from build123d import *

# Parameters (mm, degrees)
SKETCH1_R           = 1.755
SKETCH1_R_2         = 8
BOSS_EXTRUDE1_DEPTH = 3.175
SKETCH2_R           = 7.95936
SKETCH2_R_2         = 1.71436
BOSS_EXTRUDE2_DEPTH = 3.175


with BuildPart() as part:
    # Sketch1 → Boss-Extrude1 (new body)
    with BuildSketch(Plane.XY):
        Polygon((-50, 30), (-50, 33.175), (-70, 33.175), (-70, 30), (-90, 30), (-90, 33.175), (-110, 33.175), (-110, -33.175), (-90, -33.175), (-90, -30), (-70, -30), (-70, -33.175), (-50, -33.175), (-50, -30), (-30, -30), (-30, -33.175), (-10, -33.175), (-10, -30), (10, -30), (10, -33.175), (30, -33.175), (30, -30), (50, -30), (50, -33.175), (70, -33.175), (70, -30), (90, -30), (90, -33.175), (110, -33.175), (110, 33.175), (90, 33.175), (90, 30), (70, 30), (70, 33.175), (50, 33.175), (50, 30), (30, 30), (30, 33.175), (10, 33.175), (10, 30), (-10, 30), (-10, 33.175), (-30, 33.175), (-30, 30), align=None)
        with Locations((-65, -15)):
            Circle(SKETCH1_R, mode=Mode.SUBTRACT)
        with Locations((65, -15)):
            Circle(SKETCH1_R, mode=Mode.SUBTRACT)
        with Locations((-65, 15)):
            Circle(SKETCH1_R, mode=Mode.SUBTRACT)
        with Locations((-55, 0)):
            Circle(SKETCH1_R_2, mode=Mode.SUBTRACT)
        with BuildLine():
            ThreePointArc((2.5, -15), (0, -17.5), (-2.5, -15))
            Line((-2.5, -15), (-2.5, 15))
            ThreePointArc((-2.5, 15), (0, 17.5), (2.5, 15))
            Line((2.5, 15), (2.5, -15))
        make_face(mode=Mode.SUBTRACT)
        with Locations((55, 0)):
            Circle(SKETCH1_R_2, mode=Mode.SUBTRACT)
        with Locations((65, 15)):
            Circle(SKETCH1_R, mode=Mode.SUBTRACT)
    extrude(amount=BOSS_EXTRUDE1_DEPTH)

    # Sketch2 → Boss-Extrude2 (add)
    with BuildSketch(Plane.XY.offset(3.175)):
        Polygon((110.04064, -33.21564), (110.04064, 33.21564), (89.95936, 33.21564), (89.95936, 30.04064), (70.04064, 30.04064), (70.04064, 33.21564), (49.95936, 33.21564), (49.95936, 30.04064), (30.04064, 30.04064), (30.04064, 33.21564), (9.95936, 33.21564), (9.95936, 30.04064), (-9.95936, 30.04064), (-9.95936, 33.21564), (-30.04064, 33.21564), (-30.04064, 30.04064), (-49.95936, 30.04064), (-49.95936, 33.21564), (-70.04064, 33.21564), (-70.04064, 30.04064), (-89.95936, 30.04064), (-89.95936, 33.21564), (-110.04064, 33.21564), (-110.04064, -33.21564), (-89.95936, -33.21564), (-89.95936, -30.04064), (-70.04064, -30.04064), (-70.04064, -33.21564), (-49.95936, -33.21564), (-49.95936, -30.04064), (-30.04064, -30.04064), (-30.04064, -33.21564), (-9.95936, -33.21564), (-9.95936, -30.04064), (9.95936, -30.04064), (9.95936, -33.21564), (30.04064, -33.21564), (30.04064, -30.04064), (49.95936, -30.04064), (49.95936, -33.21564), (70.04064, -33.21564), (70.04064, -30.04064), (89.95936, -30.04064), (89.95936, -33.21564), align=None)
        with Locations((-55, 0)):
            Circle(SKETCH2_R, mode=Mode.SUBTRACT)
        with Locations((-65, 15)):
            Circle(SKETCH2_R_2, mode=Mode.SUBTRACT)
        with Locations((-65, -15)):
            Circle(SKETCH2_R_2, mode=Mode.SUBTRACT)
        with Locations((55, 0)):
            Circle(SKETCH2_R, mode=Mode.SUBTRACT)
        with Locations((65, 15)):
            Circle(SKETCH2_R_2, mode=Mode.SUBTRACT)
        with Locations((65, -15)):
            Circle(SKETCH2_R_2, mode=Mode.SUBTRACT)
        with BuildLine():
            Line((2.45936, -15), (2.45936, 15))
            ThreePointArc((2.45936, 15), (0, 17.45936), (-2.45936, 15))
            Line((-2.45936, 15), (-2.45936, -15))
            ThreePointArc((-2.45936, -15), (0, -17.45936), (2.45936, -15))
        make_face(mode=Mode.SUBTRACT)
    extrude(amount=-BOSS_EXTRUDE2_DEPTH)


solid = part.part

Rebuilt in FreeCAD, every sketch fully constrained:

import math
import FreeCAD as App
import Part
import Sketcher
from FreeCAD import Vector


def add_polygon(sketch, points):
    """Adds a closed chain of lines whose ends are joined by coincident constraints."""
    first, n = sketch.GeometryCount, len(points)
    for a, b in zip(points, points[1:] + points[:1]):
        sketch.addGeometry(Part.LineSegment(App.Vector(*a, 0), App.Vector(*b, 0)), False)
    for i in range(n):
        sketch.addConstraint(Sketcher.Constraint("Coincident", first + i, 2, first + (i + 1) % n, 1))

doc = App.newDocument("Part")
body = doc.addObject("PartDesign::Body", "Body")

sketch1 = doc.addObject("Sketcher::SketchObject", "Sketch")
body.addObject(sketch1)
sketch1.AttachmentSupport = (doc.XY_Plane, [""])
sketch1.MapMode = "FlatFace"
add_polygon(sketch1, [(-50, 30), (-50, 33.2), (-70, 33.2), (-70, 30), (-90, 30), (-90, 33.2), (-110, 33.2), (-110, -33.2), (-90, -33.2), (-90, -30), (-70, -30), (-70, -33.2), (-50, -33.2), (-50, -30), (-30, -30), (-30, -33.2), (-10, -33.2), (-10, -30), (10, -30), (10, -33.2), (30, -33.2), (30, -30), (50, -30), (50, -33.2), (70, -33.2), (70, -30), (90, -30), (90, -33.2), (110, -33.2), (110, 33.2), (90, 33.2), (90, 30), (70, 30), (70, 33.2), (50, 33.2), (50, 30), (30, 30), (30, 33.2), (10, 33.2), (10, 30), (-10, 30), (-10, 33.2), (-30, 33.2), (-30, 30)])
sketch1.addGeometry(Part.Circle(Vector(-65, -15, 0), Vector(0, 0, 1), 1.8), False)
sketch1.addGeometry(Part.Circle(Vector(65, -15, 0), Vector(0, 0, 1), 1.8), False)
sketch1.addGeometry(Part.Circle(Vector(-55, 0, 0), Vector(0, 0, 1), 8), False)
sketch1.addGeometry(Part.Circle(Vector(-65, 15, 0), Vector(0, 0, 1), 1.8), False)
sketch1.addGeometry(Part.LineSegment(Vector(2.5, 15, 0), Vector(2.5, -15, 0)), False)
sketch1.addGeometry(Part.ArcOfCircle(Part.Circle(Vector(0, -15, 0), Vector(0, 0, 1), 2.5), math.radians(180), math.radians(360)), False)
sketch1.addGeometry(Part.LineSegment(Vector(-2.5, -15, 0), Vector(-2.5, 15, 0)), False)
sketch1.addGeometry(Part.ArcOfCircle(Part.Circle(Vector(0, 15, 0), Vector(0, 0, 1), 2.5), math.radians(0), math.radians(180)), False)
sketch1.addGeometry(Part.Circle(Vector(55, 0, 0), Vector(0, 0, 1), 8), False)
sketch1.addGeometry(Part.Circle(Vector(65, 15, 0), Vector(0, 0, 1), 1.8), False)
sketch1.addConstraint([
    Sketcher.Constraint("Tangent", 48, 2, 49, 2),
    Sketcher.Constraint("Tangent", 49, 1, 50, 1),
    Sketcher.Constraint("Tangent", 50, 2, 51, 2),
    Sketcher.Constraint("Tangent", 51, 1, 48, 1),
    Sketcher.Constraint("Vertical", 0),
    Sketcher.Constraint("Horizontal", 1),
    Sketcher.Constraint("Vertical", 2),
    Sketcher.Constraint("Horizontal", 3),
    Sketcher.Constraint("Vertical", 4),
    Sketcher.Constraint("Horizontal", 5),
    Sketcher.Constraint("Vertical", 6),
    Sketcher.Constraint("Horizontal", 7),
    Sketcher.Constraint("Vertical", 8),
    Sketcher.Constraint("Horizontal", 9),
    Sketcher.Constraint("Vertical", 10),
    Sketcher.Constraint("Horizontal", 11),
    Sketcher.Constraint("Vertical", 12),
    Sketcher.Constraint("Horizontal", 13),
    Sketcher.Constraint("Vertical", 14),
    Sketcher.Constraint("Horizontal", 15),
    Sketcher.Constraint("Vertical", 16),
    Sketcher.Constraint("Horizontal", 17),
    Sketcher.Constraint("Vertical", 18),
    Sketcher.Constraint("Horizontal", 19),
    Sketcher.Constraint("Vertical", 20),
    Sketcher.Constraint("Horizontal", 21),
    Sketcher.Constraint("Vertical", 22),
    Sketcher.Constraint("Horizontal", 23),
    Sketcher.Constraint("Vertical", 24),
    Sketcher.Constraint("Horizontal", 25),
    Sketcher.Constraint("Vertical", 26),
    Sketcher.Constraint("Horizontal", 27),
    Sketcher.Constraint("Vertical", 28),
    Sketcher.Constraint("Horizontal", 29),
    Sketcher.Constraint("Vertical", 30),
    Sketcher.Constraint("Horizontal", 31),
    Sketcher.Constraint("Vertical", 32),
    Sketcher.Constraint("Horizontal", 33),
    Sketcher.Constraint("Vertical", 34),
    Sketcher.Constraint("Horizontal", 35),
    Sketcher.Constraint("Vertical", 36),
    Sketcher.Constraint("Horizontal", 37),
    Sketcher.Constraint("Vertical", 38),
    Sketcher.Constraint("Horizontal", 39),
    Sketcher.Constraint("Vertical", 40),
    Sketcher.Constraint("Horizontal", 41),
    Sketcher.Constraint("Vertical", 42),
    Sketcher.Constraint("Horizontal", 43),
    Sketcher.Constraint("Vertical", 48),
    Sketcher.Constraint("Vertical", 50),
    Sketcher.Constraint("Equal", 44, 45),
    Sketcher.Constraint("Equal", 45, 47),
    Sketcher.Constraint("Equal", 46, 52),
    Sketcher.Constraint("Equal", 47, 53),
    Sketcher.Constraint("Symmetric", 45, 3, 47, 3, -1, 1),
    Sketcher.Constraint("Symmetric", 49, 3, 51, 3, -1, 1),
    Sketcher.Constraint("Symmetric", 46, 3, 52, 3, -1, 1),
    Sketcher.Constraint("Symmetric", 44, 3, 53, 3, -1, 1),
    Sketcher.Constraint("Symmetric", 0, 2, 22, 2, -1, 1),
    Sketcher.Constraint("Symmetric", 2, 2, 24, 2, -1, 1),
    Sketcher.Constraint("Symmetric", 4, 2, 26, 2, -1, 1),
    Sketcher.Constraint("Symmetric", 6, 2, 28, 2, -1, 1),
    Sketcher.Constraint("Symmetric", 8, 2, 30, 2, -1, 1),
    Sketcher.Constraint("Symmetric", 10, 2, 32, 2, -1, 1),
    Sketcher.Constraint("Symmetric", 12, 2, 34, 2, -1, 1),
    Sketcher.Constraint("Symmetric", 14, 2, 36, 2, -1, 1),
    Sketcher.Constraint("Symmetric", 16, 2, 38, 2, -1, 1),
    Sketcher.Constraint("Symmetric", 18, 2, 40, 2, -1, 1),
    Sketcher.Constraint("Symmetric", 20, 2, 42, 2, -1, 1),
    Sketcher.Constraint("Symmetric", 44, 3, 45, 3, -2),
    Sketcher.Constraint("Symmetric", 15, 2, 18, 2, -2),
    Sketcher.Constraint("Symmetric", 13, 2, 20, 2, -2),
    Sketcher.Constraint("Symmetric", 11, 2, 22, 2, -2),
    Sketcher.Constraint("Symmetric", 9, 2, 24, 2, -2),
    Sketcher.Constraint("Symmetric", 7, 2, 26, 2, -2),
    Sketcher.Constraint("PointOnObject", 46, 3, -1),
    Sketcher.Constraint("Horizontal", 45, 3, 49, 3),
    Sketcher.Constraint("Horizontal", 1, 2, 4, 2),
    Sketcher.Constraint("Horizontal", 9, 2, 12, 2),
    Sketcher.Constraint("Horizontal", 11, 2, 14, 2),
    Sketcher.Constraint("Horizontal", 13, 2, 16, 2),
    Sketcher.Constraint("Equal", 1, 3),
    Sketcher.Constraint("Equal", 3, 5),
    Sketcher.Constraint("Equal", 11, 13),
    Sketcher.Constraint("Equal", 13, 15),
    Sketcher.Constraint("Equal", 15, 17),
    Sketcher.Constraint("Diameter", 46, 16.0),
    Sketcher.Constraint("Radius", 49, 2.5),
    Sketcher.Constraint("Diameter", 44, 3.51),
    Sketcher.Constraint("DistanceX", 1, 2, 1, 1, 20.0),
    Sketcher.Constraint("DistanceY", 48, 2, 48, 1, 30.0),
    Sketcher.Constraint("DistanceX", 44, 3, -1, 1, 65.0),
    Sketcher.Constraint("DistanceX", 46, 3, -1, 1, 55.0),
    Sketcher.Constraint("DistanceY", -1, 1, 2, 2, 30.0),
    Sketcher.Constraint("DistanceY", 6, 2, 6, 1, 66.35),
])
pad1 = doc.addObject("PartDesign::Pad", "Pad")
body.addObject(pad1)
pad1.Profile = sketch1
pad1.Length = 3.175

sketch2 = doc.addObject("Sketcher::SketchObject", "Sketch001")
body.addObject(sketch2)
sketch2.AttachmentSupport = (doc.XY_Plane, [""])
sketch2.MapMode = "FlatFace"
sketch2.AttachmentOffset = App.Placement(Vector(0, 0, 3.175), App.Rotation())
add_polygon(sketch2, [(110, -33.2), (110, 33.2), (90, 33.2), (90, 30), (70, 30), (70, 33.2), (50, 33.2), (50, 30), (30, 30), (30, 33.2), (10, 33.2), (10, 30), (-10, 30), (-10, 33.2), (-30, 33.2), (-30, 30), (-50, 30), (-50, 33.2), (-70, 33.2), (-70, 30), (-90, 30), (-90, 33.2), (-110, 33.2), (-110, -33.2), (-90, -33.2), (-90, -30), (-70, -30), (-70, -33.2), (-50, -33.2), (-50, -30), (-30, -30), (-30, -33.2), (-10, -33.2), (-10, -30), (10, -30), (10, -33.2), (30, -33.2), (30, -30), (50, -30), (50, -33.2), (70, -33.2), (70, -30), (90, -30), (90, -33.2)])
sketch2.addGeometry(Part.Circle(Vector(-65, -15, 0), Vector(0, 0, 1), 1.7), False)
sketch2.addGeometry(Part.Circle(Vector(-55, 0, 0), Vector(0, 0, 1), 8), False)
sketch2.addGeometry(Part.Circle(Vector(65, -15, 0), Vector(0, 0, 1), 1.7), False)
sketch2.addGeometry(Part.Circle(Vector(55, 0, 0), Vector(0, 0, 1), 8), False)
sketch2.addGeometry(Part.Circle(Vector(-65, 15, 0), Vector(0, 0, 1), 1.7), False)
sketch2.addGeometry(Part.LineSegment(Vector(2.5, 15, 0), Vector(2.5, -15, 0)), False)
sketch2.addGeometry(Part.ArcOfCircle(Part.Circle(Vector(0, -15, 0), Vector(0, 0, 1), 2.5), math.radians(180), math.radians(360)), False)
sketch2.addGeometry(Part.LineSegment(Vector(-2.5, -15, 0), Vector(-2.5, 15, 0)), False)
sketch2.addGeometry(Part.ArcOfCircle(Part.Circle(Vector(0, 15, 0), Vector(0, 0, 1), 2.5), math.radians(0), math.radians(180)), False)
sketch2.addGeometry(Part.Circle(Vector(65, 15, 0), Vector(0, 0, 1), 1.7), False)
sketch2.addConstraint([
    Sketcher.Constraint("Tangent", 49, 2, 50, 2),
    Sketcher.Constraint("Tangent", 50, 1, 51, 1),
    Sketcher.Constraint("Tangent", 51, 2, 52, 2),
    Sketcher.Constraint("Tangent", 52, 1, 49, 1),
    Sketcher.Constraint("Vertical", 0),
    Sketcher.Constraint("Horizontal", 1),
    Sketcher.Constraint("Vertical", 2),
    Sketcher.Constraint("Horizontal", 3),
    Sketcher.Constraint("Vertical", 4),
    Sketcher.Constraint("Horizontal", 5),
    Sketcher.Constraint("Vertical", 6),
    Sketcher.Constraint("Horizontal", 7),
    Sketcher.Constraint("Vertical", 8),
    Sketcher.Constraint("Horizontal", 9),
    Sketcher.Constraint("Vertical", 10),
    Sketcher.Constraint("Horizontal", 11),
    Sketcher.Constraint("Vertical", 12),
    Sketcher.Constraint("Horizontal", 13),
    Sketcher.Constraint("Vertical", 14),
    Sketcher.Constraint("Horizontal", 15),
    Sketcher.Constraint("Vertical", 16),
    Sketcher.Constraint("Horizontal", 17),
    Sketcher.Constraint("Vertical", 18),
    Sketcher.Constraint("Horizontal", 19),
    Sketcher.Constraint("Vertical", 20),
    Sketcher.Constraint("Horizontal", 21),
    Sketcher.Constraint("Vertical", 22),
    Sketcher.Constraint("Horizontal", 23),
    Sketcher.Constraint("Vertical", 24),
    Sketcher.Constraint("Horizontal", 25),
    Sketcher.Constraint("Vertical", 26),
    Sketcher.Constraint("Horizontal", 27),
    Sketcher.Constraint("Vertical", 28),
    Sketcher.Constraint("Horizontal", 29),
    Sketcher.Constraint("Vertical", 30),
    Sketcher.Constraint("Horizontal", 31),
    Sketcher.Constraint("Vertical", 32),
    Sketcher.Constraint("Horizontal", 33),
    Sketcher.Constraint("Vertical", 34),
    Sketcher.Constraint("Horizontal", 35),
    Sketcher.Constraint("Vertical", 36),
    Sketcher.Constraint("Horizontal", 37),
    Sketcher.Constraint("Vertical", 38),
    Sketcher.Constraint("Horizontal", 39),
    Sketcher.Constraint("Vertical", 40),
    Sketcher.Constraint("Horizontal", 41),
    Sketcher.Constraint("Vertical", 42),
    Sketcher.Constraint("Horizontal", 43),
    Sketcher.Constraint("Vertical", 49),
    Sketcher.Constraint("Vertical", 51),
    Sketcher.Constraint("Equal", 44, 46),
    Sketcher.Constraint("Equal", 45, 47),
    Sketcher.Constraint("Equal", 46, 48),
    Sketcher.Constraint("Equal", 48, 53),
    Sketcher.Constraint("Symmetric", 45, 3, 47, 3, -1, 1),
    Sketcher.Constraint("Symmetric", 46, 3, 48, 3, -1, 1),
    Sketcher.Constraint("Symmetric", 50, 3, 52, 3, -1, 1),
    Sketcher.Constraint("Symmetric", 44, 3, 53, 3, -1, 1),
    Sketcher.Constraint("Symmetric", 0, 2, 22, 2, -1, 1),
    Sketcher.Constraint("Symmetric", 2, 2, 24, 2, -1, 1),
    Sketcher.Constraint("Symmetric", 4, 2, 26, 2, -1, 1),
    Sketcher.Constraint("Symmetric", 6, 2, 28, 2, -1, 1),
    Sketcher.Constraint("Symmetric", 8, 2, 30, 2, -1, 1),
    Sketcher.Constraint("Symmetric", 10, 2, 32, 2, -1, 1),
    Sketcher.Constraint("Symmetric", 12, 2, 34, 2, -1, 1),
    Sketcher.Constraint("Symmetric", 14, 2, 36, 2, -1, 1),
    Sketcher.Constraint("Symmetric", 16, 2, 38, 2, -1, 1),
    Sketcher.Constraint("Symmetric", 18, 2, 40, 2, -1, 1),
    Sketcher.Constraint("Symmetric", 20, 2, 42, 2, -1, 1),
    Sketcher.Constraint("Symmetric", 44, 3, 46, 3, -2),
    Sketcher.Constraint("Symmetric", 9, 2, 12, 2, -2),
    Sketcher.Constraint("Symmetric", 7, 2, 14, 2, -2),
    Sketcher.Constraint("Symmetric", 5, 2, 16, 2, -2),
    Sketcher.Constraint("Symmetric", 3, 2, 18, 2, -2),
    Sketcher.Constraint("Symmetric", 1, 2, 20, 2, -2),
    Sketcher.Constraint("PointOnObject", 45, 3, -1),
    Sketcher.Constraint("Horizontal", 46, 3, 50, 3),
    Sketcher.Constraint("Horizontal", 1, 2, 4, 2),
    Sketcher.Constraint("Horizontal", 3, 2, 6, 2),
    Sketcher.Constraint("Horizontal", 5, 2, 8, 2),
    Sketcher.Constraint("Horizontal", 7, 2, 10, 2),
    Sketcher.Constraint("Equal", 1, 5),
    Sketcher.Constraint("Equal", 3, 7),
    Sketcher.Constraint("Equal", 5, 9),
    Sketcher.Constraint("Equal", 7, 11),
    Sketcher.Constraint("DistanceY", 49, 2, 49, 1, 30.0),
    Sketcher.Constraint("DistanceX", 44, 3, -1, 1, 65.0),
    Sketcher.Constraint("DistanceX", 45, 3, -1, 1, 55.0),
    Sketcher.Constraint("DistanceX", 3, 2, 0, 2, 40.0),
    Sketcher.Constraint("DistanceX", 49, 2, 33, 2, 7.5),
    Sketcher.Constraint("Diameter", 44, 3.42872),
    Sketcher.Constraint("Diameter", 45, 15.91872),
    Sketcher.Constraint("DistanceY", 2, 2, 2, 1, 3.175),
    Sketcher.Constraint("Radius", 50, 2.45936),
    Sketcher.Constraint("DistanceY", 0, 1, 0, 2, 66.43128),
])
pad2 = doc.addObject("PartDesign::Pad", "Pad001")
body.addObject(pad2)
pad2.Profile = sketch2
pad2.Length = 3.175
pad2.Reversed = True

doc.recompute()
